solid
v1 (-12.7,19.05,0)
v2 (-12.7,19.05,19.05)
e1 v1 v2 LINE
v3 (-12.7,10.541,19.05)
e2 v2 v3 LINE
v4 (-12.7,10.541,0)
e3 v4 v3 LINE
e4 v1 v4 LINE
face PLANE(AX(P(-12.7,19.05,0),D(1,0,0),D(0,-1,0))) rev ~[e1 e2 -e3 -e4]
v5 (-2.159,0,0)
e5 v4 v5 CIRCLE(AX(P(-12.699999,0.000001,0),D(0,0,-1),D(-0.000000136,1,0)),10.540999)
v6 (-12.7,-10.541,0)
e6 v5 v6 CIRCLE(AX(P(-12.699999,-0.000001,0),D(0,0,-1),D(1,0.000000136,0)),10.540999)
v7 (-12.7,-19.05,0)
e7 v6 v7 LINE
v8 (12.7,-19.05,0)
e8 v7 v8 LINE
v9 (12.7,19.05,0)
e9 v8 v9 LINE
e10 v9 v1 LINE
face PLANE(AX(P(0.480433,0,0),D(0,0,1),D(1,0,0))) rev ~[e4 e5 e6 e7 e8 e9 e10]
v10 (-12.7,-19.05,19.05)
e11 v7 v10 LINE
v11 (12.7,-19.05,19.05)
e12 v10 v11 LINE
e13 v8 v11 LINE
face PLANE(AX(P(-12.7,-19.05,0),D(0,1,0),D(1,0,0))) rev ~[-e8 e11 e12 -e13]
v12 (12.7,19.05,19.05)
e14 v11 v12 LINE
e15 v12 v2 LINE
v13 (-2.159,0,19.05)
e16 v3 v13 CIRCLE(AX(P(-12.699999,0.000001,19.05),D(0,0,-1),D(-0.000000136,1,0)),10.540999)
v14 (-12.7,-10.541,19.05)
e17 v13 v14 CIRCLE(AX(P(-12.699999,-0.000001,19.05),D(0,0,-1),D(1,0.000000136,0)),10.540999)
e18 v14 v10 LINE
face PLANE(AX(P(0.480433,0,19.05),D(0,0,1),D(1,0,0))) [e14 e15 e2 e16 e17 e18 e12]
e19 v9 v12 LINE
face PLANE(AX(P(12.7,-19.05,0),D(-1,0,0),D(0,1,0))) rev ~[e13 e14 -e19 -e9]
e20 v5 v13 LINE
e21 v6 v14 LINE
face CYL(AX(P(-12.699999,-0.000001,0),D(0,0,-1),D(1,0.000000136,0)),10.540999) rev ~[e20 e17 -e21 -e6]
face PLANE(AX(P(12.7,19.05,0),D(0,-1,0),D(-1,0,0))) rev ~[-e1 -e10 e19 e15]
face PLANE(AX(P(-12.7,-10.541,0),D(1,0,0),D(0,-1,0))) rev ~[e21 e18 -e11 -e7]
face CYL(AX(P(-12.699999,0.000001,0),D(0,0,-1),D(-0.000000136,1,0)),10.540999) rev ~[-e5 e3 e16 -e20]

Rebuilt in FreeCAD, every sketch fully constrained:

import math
import FreeCAD as App
import Part
import Sketcher
Q = App.Units.Quantity

doc = App.newDocument("Part")
body = doc.addObject("PartDesign::Body", "Body")

# Sketch on XY plane
sketch1 = doc.addObject("Sketcher::SketchObject", "Sketch")
body.addObject(sketch1)
sketch1.AttachmentSupport = (doc.XY_Plane, [""])
sketch1.MapMode = "FlatFace"
sketch1.addGeometry([
    Part.LineSegment(App.Vector(12.7, -19.05, 0), App.Vector(12.7, 19.05, 0)),  # 0
    Part.LineSegment(App.Vector(12.7, 19.05, 0), App.Vector(-12.7, 19.05, 0)),  # 1
    Part.LineSegment(App.Vector(-12.7, 19.05, 0), App.Vector(-12.7, 10.541, 0)),  # 2
    Part.ArcOfCircle(Part.Circle(App.Vector(-12.699999, 0.000001, 0), App.Vector(0, 0, 1), 10.540999), math.radians(-0.000008), math.radians(90.000008)),  # 3
    Part.ArcOfCircle(Part.Circle(App.Vector(-12.699999, -0.000001, 0), App.Vector(0, 0, 1), 10.540999), math.radians(-90.000008), math.radians(0.000008)),  # 4
    Part.LineSegment(App.Vector(-12.7, -10.541, 0), App.Vector(-12.7, -19.05, 0)),  # 5
    Part.LineSegment(App.Vector(-12.7, -19.05, 0), App.Vector(12.7, -19.05, 0)),  # 6
], False)
sketch1.addConstraint([
    Sketcher.Constraint("Coincident", 0, 2, 1, 1),
    Sketcher.Constraint("Coincident", 1, 2, 2, 1),
    Sketcher.Constraint("Coincident", 2, 2, 3, 2),
    Sketcher.Constraint("Tangent", 3, 1, 4, 2),
    Sketcher.Constraint("Coincident", 4, 1, 5, 1),
    Sketcher.Constraint("Coincident", 5, 2, 6, 1),
    Sketcher.Constraint("Coincident", 6, 2, 0, 1),
    Sketcher.Constraint("Vertical", 0),
    Sketcher.Constraint("Horizontal", 1),
    Sketcher.Constraint("Vertical", 2),
    Sketcher.Constraint("Vertical", 5),
    Sketcher.Constraint("Horizontal", 6),
    Sketcher.Constraint("Equal", 3, 4),
    Sketcher.Constraint("Symmetric", 0, 2, 5, 2, -1, 1),
    Sketcher.Constraint("Symmetric", 2, 2, 4, 1, -1),
    Sketcher.Constraint("PointOnObject", 3, 1, -1),
    Sketcher.Constraint("Vertical", 4, 3, 1, 2),
    Sketcher.Constraint("DistanceX", 1, 2, 1, 1, Q("1 in")),
    Sketcher.Constraint("DistanceY", 0, 1, 0, 2, Q("1.5 in")),
    Sketcher.Constraint("Radius", 3, Q("0.4149999 in")),
])
pad1 = doc.addObject("PartDesign::Pad", "Pad")
body.addObject(pad1)
pad1.Profile = sketch1
pad1.Length = Q("0.75 in")

doc.recompute()
